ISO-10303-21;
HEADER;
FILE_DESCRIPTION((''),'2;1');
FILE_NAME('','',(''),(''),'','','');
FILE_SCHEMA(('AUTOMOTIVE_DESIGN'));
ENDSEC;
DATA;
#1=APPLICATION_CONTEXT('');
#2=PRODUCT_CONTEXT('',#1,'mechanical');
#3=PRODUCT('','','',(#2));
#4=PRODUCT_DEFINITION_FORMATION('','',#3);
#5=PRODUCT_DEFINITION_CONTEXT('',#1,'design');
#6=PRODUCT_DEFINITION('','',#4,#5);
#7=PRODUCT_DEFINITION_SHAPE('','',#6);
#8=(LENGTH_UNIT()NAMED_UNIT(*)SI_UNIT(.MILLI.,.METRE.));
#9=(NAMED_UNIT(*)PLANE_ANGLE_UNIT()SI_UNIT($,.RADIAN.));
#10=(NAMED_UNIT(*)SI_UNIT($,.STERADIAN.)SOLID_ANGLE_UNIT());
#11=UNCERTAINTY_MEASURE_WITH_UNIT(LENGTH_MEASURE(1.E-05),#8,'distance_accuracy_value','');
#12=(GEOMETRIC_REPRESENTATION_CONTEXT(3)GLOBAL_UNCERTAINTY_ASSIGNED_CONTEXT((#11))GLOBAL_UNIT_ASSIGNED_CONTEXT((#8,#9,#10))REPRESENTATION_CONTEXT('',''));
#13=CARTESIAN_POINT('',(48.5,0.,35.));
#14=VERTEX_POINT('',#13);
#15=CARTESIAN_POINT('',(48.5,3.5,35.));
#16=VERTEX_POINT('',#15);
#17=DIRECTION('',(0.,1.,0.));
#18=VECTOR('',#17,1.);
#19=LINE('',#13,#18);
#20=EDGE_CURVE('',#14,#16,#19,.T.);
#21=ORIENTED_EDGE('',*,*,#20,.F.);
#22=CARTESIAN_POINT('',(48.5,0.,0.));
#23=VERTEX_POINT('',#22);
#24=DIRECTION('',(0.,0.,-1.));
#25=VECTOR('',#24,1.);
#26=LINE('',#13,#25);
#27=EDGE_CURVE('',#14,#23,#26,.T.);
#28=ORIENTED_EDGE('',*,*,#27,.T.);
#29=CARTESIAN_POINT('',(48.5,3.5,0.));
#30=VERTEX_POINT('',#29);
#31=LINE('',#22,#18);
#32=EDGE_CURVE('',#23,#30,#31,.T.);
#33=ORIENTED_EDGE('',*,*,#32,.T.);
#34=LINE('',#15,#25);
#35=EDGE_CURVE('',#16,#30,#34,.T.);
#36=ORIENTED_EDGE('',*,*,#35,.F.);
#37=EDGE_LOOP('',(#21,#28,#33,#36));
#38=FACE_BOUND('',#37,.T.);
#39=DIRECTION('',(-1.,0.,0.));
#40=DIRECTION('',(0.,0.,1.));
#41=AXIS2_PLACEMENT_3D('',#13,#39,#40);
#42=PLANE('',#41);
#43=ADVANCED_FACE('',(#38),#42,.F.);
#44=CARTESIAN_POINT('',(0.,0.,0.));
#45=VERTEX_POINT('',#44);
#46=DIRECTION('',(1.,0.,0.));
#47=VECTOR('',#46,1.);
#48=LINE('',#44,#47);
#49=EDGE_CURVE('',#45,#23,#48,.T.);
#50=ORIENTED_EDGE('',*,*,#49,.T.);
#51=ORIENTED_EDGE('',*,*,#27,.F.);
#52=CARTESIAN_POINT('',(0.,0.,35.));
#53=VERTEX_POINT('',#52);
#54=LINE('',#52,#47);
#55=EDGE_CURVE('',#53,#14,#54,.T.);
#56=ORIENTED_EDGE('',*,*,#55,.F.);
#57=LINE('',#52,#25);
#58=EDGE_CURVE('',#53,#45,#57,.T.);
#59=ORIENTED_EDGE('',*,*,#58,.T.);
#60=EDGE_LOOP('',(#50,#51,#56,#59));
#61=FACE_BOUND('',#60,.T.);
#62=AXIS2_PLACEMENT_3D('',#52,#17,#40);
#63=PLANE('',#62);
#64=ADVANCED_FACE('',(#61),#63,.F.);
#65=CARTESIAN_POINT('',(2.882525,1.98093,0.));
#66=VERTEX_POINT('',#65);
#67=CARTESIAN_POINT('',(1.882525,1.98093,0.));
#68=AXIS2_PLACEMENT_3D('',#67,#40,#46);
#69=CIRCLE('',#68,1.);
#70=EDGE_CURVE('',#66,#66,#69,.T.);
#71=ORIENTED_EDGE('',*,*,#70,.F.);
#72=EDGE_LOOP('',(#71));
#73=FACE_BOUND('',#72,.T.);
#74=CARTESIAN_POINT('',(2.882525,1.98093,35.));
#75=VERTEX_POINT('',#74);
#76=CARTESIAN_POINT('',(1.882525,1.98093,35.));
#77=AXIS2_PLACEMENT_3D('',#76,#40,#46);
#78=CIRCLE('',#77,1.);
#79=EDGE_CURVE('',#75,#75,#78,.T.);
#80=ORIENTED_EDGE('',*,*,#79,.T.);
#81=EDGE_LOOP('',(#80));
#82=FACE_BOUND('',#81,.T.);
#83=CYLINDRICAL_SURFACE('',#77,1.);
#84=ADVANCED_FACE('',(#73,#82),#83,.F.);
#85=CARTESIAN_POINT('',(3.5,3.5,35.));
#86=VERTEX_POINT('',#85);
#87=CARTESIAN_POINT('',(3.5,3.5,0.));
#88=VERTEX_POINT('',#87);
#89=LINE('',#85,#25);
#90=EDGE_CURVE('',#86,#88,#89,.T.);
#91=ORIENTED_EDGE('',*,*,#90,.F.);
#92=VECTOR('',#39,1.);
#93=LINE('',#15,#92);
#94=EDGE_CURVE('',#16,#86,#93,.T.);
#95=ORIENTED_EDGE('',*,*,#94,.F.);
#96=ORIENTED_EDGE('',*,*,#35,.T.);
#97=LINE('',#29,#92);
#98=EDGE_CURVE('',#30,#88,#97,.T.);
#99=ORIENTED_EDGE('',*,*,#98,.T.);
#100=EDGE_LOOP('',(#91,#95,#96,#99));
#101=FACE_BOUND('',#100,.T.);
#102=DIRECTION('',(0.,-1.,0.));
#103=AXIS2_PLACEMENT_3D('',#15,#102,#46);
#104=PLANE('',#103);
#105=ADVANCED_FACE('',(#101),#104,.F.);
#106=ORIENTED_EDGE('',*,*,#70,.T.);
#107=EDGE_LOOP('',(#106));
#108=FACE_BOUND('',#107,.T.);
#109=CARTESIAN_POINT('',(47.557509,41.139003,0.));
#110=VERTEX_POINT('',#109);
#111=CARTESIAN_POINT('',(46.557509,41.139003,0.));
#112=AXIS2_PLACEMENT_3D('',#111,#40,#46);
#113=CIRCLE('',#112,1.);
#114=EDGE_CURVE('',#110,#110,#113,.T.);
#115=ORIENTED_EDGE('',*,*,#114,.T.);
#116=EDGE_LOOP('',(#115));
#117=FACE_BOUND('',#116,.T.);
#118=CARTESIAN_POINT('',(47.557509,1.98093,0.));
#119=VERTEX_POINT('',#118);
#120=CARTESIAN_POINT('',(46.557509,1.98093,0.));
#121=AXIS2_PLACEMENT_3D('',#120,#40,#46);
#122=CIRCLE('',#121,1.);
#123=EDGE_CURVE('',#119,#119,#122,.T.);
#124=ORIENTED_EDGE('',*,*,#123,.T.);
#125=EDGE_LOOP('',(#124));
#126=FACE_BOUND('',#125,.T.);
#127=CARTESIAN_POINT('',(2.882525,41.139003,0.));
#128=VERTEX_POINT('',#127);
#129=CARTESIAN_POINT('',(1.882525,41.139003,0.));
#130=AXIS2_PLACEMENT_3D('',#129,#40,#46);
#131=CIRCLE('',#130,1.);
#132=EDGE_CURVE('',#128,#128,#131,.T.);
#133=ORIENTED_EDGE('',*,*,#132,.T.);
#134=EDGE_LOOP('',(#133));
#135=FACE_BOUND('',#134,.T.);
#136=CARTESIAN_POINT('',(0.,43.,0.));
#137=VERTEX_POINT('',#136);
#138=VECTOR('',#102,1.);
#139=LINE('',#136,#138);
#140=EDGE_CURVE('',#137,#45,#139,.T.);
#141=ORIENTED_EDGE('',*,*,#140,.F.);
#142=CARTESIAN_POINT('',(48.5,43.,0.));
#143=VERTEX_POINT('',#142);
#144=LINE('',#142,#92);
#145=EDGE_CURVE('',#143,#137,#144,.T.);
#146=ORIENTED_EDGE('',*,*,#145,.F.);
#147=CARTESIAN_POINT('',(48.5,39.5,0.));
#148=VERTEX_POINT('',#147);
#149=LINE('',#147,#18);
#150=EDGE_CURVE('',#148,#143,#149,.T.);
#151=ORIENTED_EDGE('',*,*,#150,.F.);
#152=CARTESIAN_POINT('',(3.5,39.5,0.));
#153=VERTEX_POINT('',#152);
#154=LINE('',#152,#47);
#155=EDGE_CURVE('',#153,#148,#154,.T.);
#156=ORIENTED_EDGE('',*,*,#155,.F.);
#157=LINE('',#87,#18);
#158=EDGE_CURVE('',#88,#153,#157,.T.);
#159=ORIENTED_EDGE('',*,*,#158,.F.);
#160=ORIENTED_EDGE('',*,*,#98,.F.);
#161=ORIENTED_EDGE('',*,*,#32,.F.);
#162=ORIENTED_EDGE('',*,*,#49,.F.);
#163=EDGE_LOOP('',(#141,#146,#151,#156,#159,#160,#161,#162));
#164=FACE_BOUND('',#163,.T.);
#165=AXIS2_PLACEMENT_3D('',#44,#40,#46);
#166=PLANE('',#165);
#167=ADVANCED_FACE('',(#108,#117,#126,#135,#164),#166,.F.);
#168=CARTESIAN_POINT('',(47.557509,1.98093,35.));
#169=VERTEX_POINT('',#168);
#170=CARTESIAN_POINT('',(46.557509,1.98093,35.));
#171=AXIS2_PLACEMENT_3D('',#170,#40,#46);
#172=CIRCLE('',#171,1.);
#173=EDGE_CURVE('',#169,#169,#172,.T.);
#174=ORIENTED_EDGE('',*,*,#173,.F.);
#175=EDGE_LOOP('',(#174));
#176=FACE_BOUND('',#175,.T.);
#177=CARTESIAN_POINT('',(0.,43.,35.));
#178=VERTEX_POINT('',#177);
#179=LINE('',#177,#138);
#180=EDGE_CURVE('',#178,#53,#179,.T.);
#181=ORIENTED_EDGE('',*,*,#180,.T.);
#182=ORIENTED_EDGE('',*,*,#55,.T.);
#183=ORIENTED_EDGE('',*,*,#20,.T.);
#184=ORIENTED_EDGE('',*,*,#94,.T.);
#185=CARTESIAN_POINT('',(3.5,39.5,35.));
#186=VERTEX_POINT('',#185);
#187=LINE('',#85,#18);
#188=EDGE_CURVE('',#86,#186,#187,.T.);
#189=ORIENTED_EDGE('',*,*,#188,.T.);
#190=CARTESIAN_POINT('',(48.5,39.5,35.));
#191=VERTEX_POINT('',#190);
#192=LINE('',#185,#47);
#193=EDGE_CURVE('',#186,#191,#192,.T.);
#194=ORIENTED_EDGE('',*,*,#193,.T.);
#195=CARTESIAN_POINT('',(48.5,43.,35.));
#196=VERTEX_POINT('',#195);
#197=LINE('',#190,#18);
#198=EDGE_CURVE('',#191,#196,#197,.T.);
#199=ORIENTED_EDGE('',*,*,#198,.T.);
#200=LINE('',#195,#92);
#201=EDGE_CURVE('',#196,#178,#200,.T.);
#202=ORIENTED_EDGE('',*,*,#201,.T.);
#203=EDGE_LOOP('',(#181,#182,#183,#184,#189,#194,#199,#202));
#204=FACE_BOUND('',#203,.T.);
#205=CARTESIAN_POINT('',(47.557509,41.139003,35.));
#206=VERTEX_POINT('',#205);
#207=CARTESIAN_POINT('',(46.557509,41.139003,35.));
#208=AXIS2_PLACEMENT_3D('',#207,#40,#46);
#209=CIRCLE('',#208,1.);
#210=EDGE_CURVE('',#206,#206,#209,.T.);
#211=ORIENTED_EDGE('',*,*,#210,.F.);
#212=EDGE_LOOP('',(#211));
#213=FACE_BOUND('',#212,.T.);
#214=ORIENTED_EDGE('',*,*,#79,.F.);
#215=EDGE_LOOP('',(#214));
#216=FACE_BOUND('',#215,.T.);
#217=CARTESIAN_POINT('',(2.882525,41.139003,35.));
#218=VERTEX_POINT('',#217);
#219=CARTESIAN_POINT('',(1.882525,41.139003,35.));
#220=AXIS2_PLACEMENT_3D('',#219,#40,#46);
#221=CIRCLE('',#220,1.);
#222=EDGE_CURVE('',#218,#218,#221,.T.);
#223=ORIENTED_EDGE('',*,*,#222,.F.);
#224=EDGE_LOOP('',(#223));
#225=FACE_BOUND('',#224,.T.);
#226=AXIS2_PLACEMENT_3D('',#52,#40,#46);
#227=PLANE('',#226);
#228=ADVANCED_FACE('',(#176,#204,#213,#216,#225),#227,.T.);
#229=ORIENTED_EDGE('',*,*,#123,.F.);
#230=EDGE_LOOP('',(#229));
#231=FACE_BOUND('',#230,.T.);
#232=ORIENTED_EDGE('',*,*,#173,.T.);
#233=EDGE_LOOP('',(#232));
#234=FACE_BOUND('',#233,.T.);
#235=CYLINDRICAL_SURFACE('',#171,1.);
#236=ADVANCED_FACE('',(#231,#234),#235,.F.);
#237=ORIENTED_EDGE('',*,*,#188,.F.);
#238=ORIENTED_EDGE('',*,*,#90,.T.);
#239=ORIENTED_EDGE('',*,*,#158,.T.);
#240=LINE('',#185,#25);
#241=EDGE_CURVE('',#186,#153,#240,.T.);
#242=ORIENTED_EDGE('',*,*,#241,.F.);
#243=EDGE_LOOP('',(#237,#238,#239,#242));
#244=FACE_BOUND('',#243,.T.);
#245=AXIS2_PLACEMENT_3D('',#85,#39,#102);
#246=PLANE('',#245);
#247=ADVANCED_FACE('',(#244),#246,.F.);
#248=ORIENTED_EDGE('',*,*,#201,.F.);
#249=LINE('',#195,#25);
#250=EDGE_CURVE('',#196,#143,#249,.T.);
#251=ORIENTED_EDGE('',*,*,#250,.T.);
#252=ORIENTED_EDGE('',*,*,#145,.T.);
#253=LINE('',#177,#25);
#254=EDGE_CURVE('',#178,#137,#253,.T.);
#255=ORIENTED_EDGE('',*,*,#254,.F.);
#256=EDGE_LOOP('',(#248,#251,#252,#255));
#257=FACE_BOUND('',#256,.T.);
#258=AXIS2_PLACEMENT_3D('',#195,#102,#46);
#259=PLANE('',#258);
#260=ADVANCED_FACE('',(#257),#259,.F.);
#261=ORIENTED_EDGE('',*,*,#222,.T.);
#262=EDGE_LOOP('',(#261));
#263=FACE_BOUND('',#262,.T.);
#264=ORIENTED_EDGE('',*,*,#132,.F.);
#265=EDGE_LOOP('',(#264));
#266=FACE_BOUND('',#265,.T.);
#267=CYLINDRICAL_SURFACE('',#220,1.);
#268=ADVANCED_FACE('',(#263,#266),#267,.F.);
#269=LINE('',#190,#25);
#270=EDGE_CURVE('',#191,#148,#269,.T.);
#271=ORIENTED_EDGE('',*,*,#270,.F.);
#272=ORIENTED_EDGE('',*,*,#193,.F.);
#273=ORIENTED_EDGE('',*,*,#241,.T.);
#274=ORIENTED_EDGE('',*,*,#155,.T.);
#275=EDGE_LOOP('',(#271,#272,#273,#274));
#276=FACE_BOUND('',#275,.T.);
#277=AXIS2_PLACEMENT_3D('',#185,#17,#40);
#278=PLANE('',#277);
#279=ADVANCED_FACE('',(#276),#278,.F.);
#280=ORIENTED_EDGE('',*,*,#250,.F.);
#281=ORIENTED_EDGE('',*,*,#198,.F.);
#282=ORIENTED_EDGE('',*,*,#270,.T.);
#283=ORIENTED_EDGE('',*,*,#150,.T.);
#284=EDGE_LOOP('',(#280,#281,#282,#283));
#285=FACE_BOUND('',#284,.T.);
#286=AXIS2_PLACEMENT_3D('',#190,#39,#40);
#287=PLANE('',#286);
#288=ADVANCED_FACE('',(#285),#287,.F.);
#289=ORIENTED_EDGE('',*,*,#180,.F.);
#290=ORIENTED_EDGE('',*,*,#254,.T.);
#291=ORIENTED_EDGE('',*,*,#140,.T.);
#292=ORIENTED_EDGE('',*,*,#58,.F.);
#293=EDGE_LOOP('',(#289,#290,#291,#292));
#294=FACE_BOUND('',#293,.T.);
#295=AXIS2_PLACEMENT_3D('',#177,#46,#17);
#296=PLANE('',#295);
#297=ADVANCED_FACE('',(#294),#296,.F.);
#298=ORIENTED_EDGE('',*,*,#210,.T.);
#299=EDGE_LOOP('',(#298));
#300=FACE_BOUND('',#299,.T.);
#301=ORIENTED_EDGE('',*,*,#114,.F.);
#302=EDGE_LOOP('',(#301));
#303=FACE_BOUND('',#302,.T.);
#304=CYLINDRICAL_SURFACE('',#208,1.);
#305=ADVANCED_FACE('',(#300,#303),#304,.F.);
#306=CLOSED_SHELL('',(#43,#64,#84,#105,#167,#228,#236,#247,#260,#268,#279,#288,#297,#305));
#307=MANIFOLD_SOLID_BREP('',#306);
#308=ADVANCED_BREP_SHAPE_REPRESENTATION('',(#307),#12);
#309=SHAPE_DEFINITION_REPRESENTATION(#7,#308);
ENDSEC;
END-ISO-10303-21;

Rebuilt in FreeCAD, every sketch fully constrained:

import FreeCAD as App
import Part
import Sketcher
from FreeCAD import Vector


def add_polygon(sketch, points):
    """Adds a closed chain of lines whose ends are joined by coincident constraints."""
    first, n = sketch.GeometryCount, len(points)
    for a, b in zip(points, points[1:] + points[:1]):
        sketch.addGeometry(Part.LineSegment(App.Vector(*a, 0), App.Vector(*b, 0)), False)
    for i in range(n):
        sketch.addConstraint(Sketcher.Constraint("Coincident", first + i, 2, first + (i + 1) % n, 1))

doc = App.newDocument("Part")
params = doc.addObject("Spreadsheet::Sheet", "Params")
for row, (alias, value) in enumerate([
    ("sketch1_width", "45 mm"),
    ("sketch1_height", "36 mm"),
    ("sketch1_height2", "43 mm"),
    ("sketch1_width2", "48.5 mm"),
    ("pad1_length", "35 mm"),
    ("sketch2_diameter", "2 mm"),
    ("hole_diameter", "2 mm"),
], start=1):
    params.set(f"A{row}", alias)
    params.set(f"B{row}", "=" + value)
    params.setAlias(f"B{row}", alias)

body = doc.addObject("PartDesign::Body", "Body")

# Sketch on XY plane
sketch1 = body.newObject("Sketcher::SketchObject", "Sketch")
sketch1.AttachmentSupport = (doc.getObject("XY_Plane"), [""])
sketch1.MapMode = "FlatFace"
add_polygon(sketch1, [(0, 0), (48.5, 0), (48.5, 3.5), (3.5, 3.5), (3.5, 39.5), (48.5, 39.5), (48.5, 43), (0, 43)])  # lines 0-7
sketch1.addConstraint([
    Sketcher.Constraint("Horizontal", 0),
    Sketcher.Constraint("Vertical", 1),
    Sketcher.Constraint("Horizontal", 2),
    Sketcher.Constraint("Vertical", 3),
    Sketcher.Constraint("Horizontal", 4),
    Sketcher.Constraint("Vertical", 5),
    Sketcher.Constraint("Horizontal", 6),
    Sketcher.Constraint("Vertical", 7),
    Sketcher.Constraint("Coincident", 7, 2, -1, 1),
    Sketcher.Constraint("Vertical", 1, 2, 4, 2),
    Sketcher.Constraint("Equal", 1, 5),
    Sketcher.Constraint("DistanceX", 2, 2, 2, 1, 45.0),
    Sketcher.Constraint("DistanceY", 3, 1, 3, 2, 36.0),
    Sketcher.Constraint("DistanceY", 7, 2, 7, 1, 43.0),
    Sketcher.Constraint("DistanceX", 0, 1, 0, 2, 48.5),
])
sketch1.setExpression("Constraints[19]", "Params.sketch1_width")
sketch1.setExpression("Constraints[20]", "Params.sketch1_height")
sketch1.setExpression("Constraints[21]", "Params.sketch1_height2")
sketch1.setExpression("Constraints[22]", "Params.sketch1_width2")
pad1 = body.newObject("PartDesign::Pad", "Pad")
pad1.Profile = sketch1
pad1.setExpression("Length", "Params.pad1_length")

# Sketch on XY plane
sketch2 = body.newObject("Sketcher::SketchObject", "Sketch001")
sketch2.AttachmentSupport = (doc.getObject("XY_Plane"), [""])
sketch2.MapMode = "FlatFace"
sketch2.AttachmentOffset = App.Placement(Vector(0, 0, 35), App.Rotation())
sketch2.addGeometry([
    Part.Circle(Vector(46.6, 2, 0), Vector(0, 0, 1), 1),
    Part.Circle(Vector(1.9, 2, 0), Vector(0, 0, 1), 1),
    Part.Circle(Vector(1.9, 41.1, 0), Vector(0, 0, 1), 1),
    Part.Circle(Vector(46.6, 41.1, 0), Vector(0, 0, 1), 1),
], False)
sketch2.addConstraint([
    Sketcher.Constraint("Equal", 0, 1),
    Sketcher.Constraint("Equal", 1, 2),
    Sketcher.Constraint("Equal", 2, 3),
    Sketcher.Constraint("Horizontal", 0, 3, 1, 3),
    Sketcher.Constraint("Horizontal", 2, 3, 3, 3),
    Sketcher.Constraint("Vertical", 1, 3, 2, 3),
    Sketcher.Constraint("Vertical", 0, 3, 3, 3),
    Sketcher.Constraint("Diameter", 0, 2.0),
    Sketcher.Constraint("DistanceX", -1, 1, 0, 3, 46.557509),
    Sketcher.Constraint("DistanceY", -1, 1, 0, 3, 1.98093),
    Sketcher.Constraint("DistanceX", -1, 1, 1, 3, 1.882525),
    Sketcher.Constraint("DistanceY", -1, 1, 2, 3, 41.139003),
])
sketch2.setExpression("Constraints[7]", "Params.sketch2_diameter")
doc.recompute()
hole = body.newObject("PartDesign::Hole", "Hole")
hole.Profile = sketch2
hole.ThreadType = "None"
hole.setExpression("Diameter", "Params.hole_diameter")
hole.DepthType = "ThroughAll"

doc.recompute()
